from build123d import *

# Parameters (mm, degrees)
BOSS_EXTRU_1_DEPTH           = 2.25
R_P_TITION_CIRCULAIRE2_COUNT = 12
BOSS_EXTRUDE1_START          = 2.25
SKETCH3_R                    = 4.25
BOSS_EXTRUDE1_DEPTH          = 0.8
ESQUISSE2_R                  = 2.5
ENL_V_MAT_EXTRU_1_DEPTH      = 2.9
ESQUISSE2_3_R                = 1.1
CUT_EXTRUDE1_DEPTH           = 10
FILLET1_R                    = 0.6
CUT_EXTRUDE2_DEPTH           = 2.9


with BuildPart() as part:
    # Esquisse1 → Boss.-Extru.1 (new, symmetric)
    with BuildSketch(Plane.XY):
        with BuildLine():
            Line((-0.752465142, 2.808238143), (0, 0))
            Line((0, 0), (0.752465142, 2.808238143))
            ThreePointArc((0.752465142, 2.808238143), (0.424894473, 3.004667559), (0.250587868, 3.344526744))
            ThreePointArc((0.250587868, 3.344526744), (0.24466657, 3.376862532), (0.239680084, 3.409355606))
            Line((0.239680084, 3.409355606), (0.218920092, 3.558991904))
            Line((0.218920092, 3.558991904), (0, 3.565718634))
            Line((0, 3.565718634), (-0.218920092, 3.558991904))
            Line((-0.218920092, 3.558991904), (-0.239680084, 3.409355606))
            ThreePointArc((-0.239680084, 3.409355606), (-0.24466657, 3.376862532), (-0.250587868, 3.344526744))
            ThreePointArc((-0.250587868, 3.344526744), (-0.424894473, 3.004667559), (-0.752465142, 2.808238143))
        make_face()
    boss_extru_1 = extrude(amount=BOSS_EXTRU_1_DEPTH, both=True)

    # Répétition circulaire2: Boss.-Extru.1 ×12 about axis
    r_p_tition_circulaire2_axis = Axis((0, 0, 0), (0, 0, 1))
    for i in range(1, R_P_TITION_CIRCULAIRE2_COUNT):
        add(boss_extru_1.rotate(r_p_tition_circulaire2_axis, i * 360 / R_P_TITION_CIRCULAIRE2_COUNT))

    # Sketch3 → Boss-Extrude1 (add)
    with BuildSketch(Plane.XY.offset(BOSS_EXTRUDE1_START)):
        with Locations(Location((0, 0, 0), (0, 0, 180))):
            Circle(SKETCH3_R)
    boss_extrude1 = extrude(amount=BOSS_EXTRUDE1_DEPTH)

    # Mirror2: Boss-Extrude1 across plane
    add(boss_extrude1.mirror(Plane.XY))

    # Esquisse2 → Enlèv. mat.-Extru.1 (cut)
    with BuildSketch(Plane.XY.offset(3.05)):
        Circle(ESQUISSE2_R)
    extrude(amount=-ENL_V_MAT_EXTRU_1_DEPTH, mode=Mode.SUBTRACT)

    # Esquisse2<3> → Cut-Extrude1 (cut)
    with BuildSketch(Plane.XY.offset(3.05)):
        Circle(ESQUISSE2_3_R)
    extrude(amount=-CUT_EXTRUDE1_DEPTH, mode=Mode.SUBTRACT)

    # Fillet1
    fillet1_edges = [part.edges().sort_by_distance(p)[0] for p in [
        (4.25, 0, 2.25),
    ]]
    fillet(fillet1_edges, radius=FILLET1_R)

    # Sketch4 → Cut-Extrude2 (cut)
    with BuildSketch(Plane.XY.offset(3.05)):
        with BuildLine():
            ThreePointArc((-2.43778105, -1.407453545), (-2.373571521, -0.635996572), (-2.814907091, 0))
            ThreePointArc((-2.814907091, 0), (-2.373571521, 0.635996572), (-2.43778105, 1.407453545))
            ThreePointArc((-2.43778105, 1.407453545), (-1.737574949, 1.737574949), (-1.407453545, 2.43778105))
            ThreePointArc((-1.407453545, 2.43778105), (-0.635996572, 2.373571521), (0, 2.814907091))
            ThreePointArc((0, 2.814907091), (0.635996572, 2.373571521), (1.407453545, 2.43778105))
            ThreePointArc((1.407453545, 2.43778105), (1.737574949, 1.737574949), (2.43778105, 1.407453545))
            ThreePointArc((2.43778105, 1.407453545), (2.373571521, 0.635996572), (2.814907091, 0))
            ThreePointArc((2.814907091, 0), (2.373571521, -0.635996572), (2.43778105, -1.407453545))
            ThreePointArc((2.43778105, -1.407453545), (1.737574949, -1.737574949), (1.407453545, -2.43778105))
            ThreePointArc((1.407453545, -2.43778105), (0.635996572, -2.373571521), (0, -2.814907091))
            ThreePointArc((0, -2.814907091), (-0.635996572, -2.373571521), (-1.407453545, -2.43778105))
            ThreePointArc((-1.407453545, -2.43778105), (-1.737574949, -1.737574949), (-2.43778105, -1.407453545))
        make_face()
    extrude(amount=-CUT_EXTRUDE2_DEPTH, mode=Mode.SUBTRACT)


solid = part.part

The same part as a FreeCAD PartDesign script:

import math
import FreeCAD as App
import Part
import Sketcher
from FreeCAD import Vector
Q = App.Units.Quantity


def edges_at(feature, points):
    """Names of the edges that pass closest to the given points."""
    edges = feature.Shape.Edges
    near = lambda p: min(range(len(edges)), key=lambda i: edges[i].distToShape(Part.Vertex(*p))[0])
    return sorted({f"Edge{near(p) + 1}" for p in points})

doc = App.newDocument("Part")
body = doc.addObject("PartDesign::Body", "Body")

# Sketch on XY plane
sketch1 = body.newObject("Sketcher::SketchObject", "Sketch")
sketch1.AttachmentSupport = (doc.getObject("XY_Plane"), [""])
sketch1.MapMode = "FlatFace"
sketch1.addGeometry(Part.LineSegment(Vector(-0.75, 2.81, 0), Vector(0, 0, 0)), False)
sketch1.addGeometry(Part.LineSegment(Vector(0, 0, 0), Vector(0.75, 2.81, 0)), False)
sketch1.addGeometry(Part.ArcOfCircle(Part.Circle(Vector(0.93, 3.48, 0), Vector(0, 0, 1), 0.69), math.radians(-169), math.radians(-105)), False)
sketch1.addGeometry(Part.ArcOfCircle(Part.Circle(Vector(1.37, 3.57, 0), Vector(0, 0, 1), 1.14), math.radians(-172.1), math.radians(-168.8)), False)
sketch1.addGeometry(Part.LineSegment(Vector(0.24, 3.41, 0), Vector(0.22, 3.56, 0)), False)
sketch1.addGeometry(Part.LineSegment(Vector(0.22, 3.56, 0), Vector(0, 3.57, 0)), False)
sketch1.addGeometry(Part.LineSegment(Vector(0, 3.57, 0), Vector(-0.22, 3.56, 0)), False)
sketch1.addGeometry(Part.LineSegment(Vector(-0.22, 3.56, 0), Vector(-0.24, 3.41, 0)), False)
sketch1.addGeometry(Part.ArcOfCircle(Part.Circle(Vector(-1.37, 3.57, 0), Vector(0, 0, 1), 1.14), math.radians(-11.2), math.radians(-7.9)), False)
sketch1.addGeometry(Part.ArcOfCircle(Part.Circle(Vector(-0.93, 3.48, 0), Vector(0, 0, 1), 0.69), math.radians(-75), math.radians(-11)), False)
sketch1.addConstraint(Sketcher.Constraint("Coincident", 0, 2, 1, 1))
sketch1.addConstraint(Sketcher.Constraint("Coincident", 1, 2, 2, 2))
sketch1.addConstraint(Sketcher.Constraint("Tangent", 2, 1, 3, 2))
sketch1.addConstraint(Sketcher.Constraint("Tangent", 3, 1, 4, 1))
sketch1.addConstraint(Sketcher.Constraint("Coincident", 4, 2, 5, 1))
sketch1.addConstraint(Sketcher.Constraint("Coincident", 5, 2, 6, 1))
sketch1.addConstraint(Sketcher.Constraint("Coincident", 6, 2, 7, 1))
sketch1.addConstraint(Sketcher.Constraint("Tangent", 7, 2, 8, 2))
sketch1.addConstraint(Sketcher.Constraint("Tangent", 8, 1, 9, 2))
sketch1.addConstraint(Sketcher.Constraint("Coincident", 9, 1, 0, 1))
sketch1.addConstraint(Sketcher.Constraint("Coincident", 0, 2, -1, 1))
sketch1.addConstraint(Sketcher.Constraint("Equal", 3, 8))
sketch1.addConstraint(Sketcher.Constraint("Equal", 2, 9))
sketch1.addConstraint(Sketcher.Constraint("Symmetric", 3, 3, 8, 3, -2))
sketch1.addConstraint(Sketcher.Constraint("Symmetric", 4, 2, 6, 2, -2))
sketch1.addConstraint(Sketcher.Constraint("Symmetric", 1, 2, 9, 1, -2))
sketch1.addConstraint(Sketcher.Constraint("PointOnObject", 5, 2, -2))
sketch1.addConstraint(Sketcher.Constraint("Angle", 0, Q("-75 deg")))
sketch1.addConstraint(Sketcher.Constraint("Radius", 3, Q("1.14 mm")))
sketch1.addConstraint(Sketcher.Constraint("Radius", 2, Q("0.695 mm")))
sketch1.addConstraint(Sketcher.Constraint("DistanceX", 1, 2, 3, 3, Q("0.6164 mm")))
sketch1.addConstraint(Sketcher.Constraint("DistanceY", 3, 1, 2, 3, Q("0.070201 mm")))
sketch1.addConstraint(Sketcher.Constraint("DistanceX", 6, 2, 3, 1, Q("0.4586 mm")))
sketch1.addConstraint(Sketcher.Constraint("Distance", 4, Q("0.15107 mm")))
sketch1.addConstraint(Sketcher.Constraint("DistanceY", -1, 1, 1, 2, Q("2.808238 mm")))
sketch1.addConstraint(Sketcher.Constraint("DistanceY", -1, 1, 5, 2, Q("3.565719 mm")))
pad1 = body.newObject("PartDesign::Pad", "Pad")
pad1.Profile = sketch1
pad1.Length = 4.5
pad1.Midplane = True
doc.recompute()

polarpattern = body.newObject("PartDesign::PolarPattern", "PolarPattern")
polarpattern.Originals = [pad1]
polarpattern.Axis = (doc.getObject("Z_Axis"), [""])
polarpattern.Angle = 360
polarpattern.Occurrences = 12
body.Tip = polarpattern

# Sketch on XY plane
sketch2 = body.newObject("Sketcher::SketchObject", "Sketch001")
sketch2.AttachmentSupport = (doc.getObject("XY_Plane"), [""])
sketch2.MapMode = "FlatFace"
sketch2.AttachmentOffset = App.Placement(Vector(0, 0, 2.25), App.Rotation())
sketch2.addGeometry(Part.Circle(Vector(0, 0, 0), Vector(0, 0, 1), 4.2), False)
sketch2.addConstraint(Sketcher.Constraint("Coincident", 0, 3, -1, 1))
sketch2.addConstraint(Sketcher.Constraint("Diameter", 0, Q("8.5 mm")))
pad2 = body.newObject("PartDesign::Pad", "Pad001")
pad2.Profile = sketch2
pad2.Length = 0.8
doc.recompute()

mirrored = body.newObject("PartDesign::Mirrored", "Mirrored")
mirrored.Originals = [pad2]
mirrored.MirrorPlane = (doc.getObject("XY_Plane"), [""])
body.Tip = mirrored

# Sketch on XY plane
sketch3 = body.newObject("Sketcher::SketchObject", "Sketch002")
sketch3.AttachmentSupport = (doc.getObject("XY_Plane"), [""])
sketch3.MapMode = "FlatFace"
sketch3.AttachmentOffset = App.Placement(Vector(0, 0, 3.05), App.Rotation())
sketch3.addGeometry(Part.Circle(Vector(0, 0, 0), Vector(0, 0, 1), 2.5), False)
sketch3.addConstraint(Sketcher.Constraint("Coincident", 0, 3, -1, 1))
sketch3.addConstraint(Sketcher.Constraint("Diameter", 0, Q("5 mm")))
pocket1 = body.newObject("PartDesign::Pocket", "Pocket")
pocket1.Profile = sketch3
pocket1.Length = 2.9

# Sketch on XY plane
sketch4 = body.newObject("Sketcher::SketchObject", "Sketch003")
sketch4.AttachmentSupport = (doc.getObject("XY_Plane"), [""])
sketch4.MapMode = "FlatFace"
sketch4.AttachmentOffset = App.Placement(Vector(0, 0, 3.05), App.Rotation())
sketch4.addGeometry(Part.Circle(Vector(0, 0, 0), Vector(0, 0, 1), 1.1), False)
sketch4.addConstraint(Sketcher.Constraint("Coincident", 0, 3, -1, 1))
sketch4.addConstraint(Sketcher.Constraint("Diameter", 0, Q("2.2 mm")))
pocket2 = body.newObject("PartDesign::Pocket", "Pocket001")
pocket2.Profile = sketch4
pocket2.Length = 10
doc.recompute()

fillet = body.newObject("PartDesign::Fillet", "Fillet")
fillet.Base = (pocket2, edges_at(pocket2, [(4.25, 0, 2.25)]))
fillet.Radius = 0.6

# Sketch on XY plane
sketch5 = body.newObject("Sketcher::SketchObject", "Sketch004")
sketch5.AttachmentSupport = (doc.getObject("XY_Plane"), [""])
sketch5.MapMode = "FlatFace"
sketch5.AttachmentOffset = App.Placement(Vector(0, 0, 3.05), App.Rotation())
sketch5.addGeometry(Part.ArcOfCircle(Part.Circle(Vector(-3.5, -0.9, 0), Vector(0, 0, 1), 1.1), math.radians(-25), math.radians(55)), False)
sketch5.addGeometry(Part.ArcOfCircle(Part.Circle(Vector(-2.5, -2.5, 0), Vector(0, 0, 1), 1.1), math.radians(5), math.radians(85)), False)
sketch5.addGeometry(Part.ArcOfCircle(Part.Circle(Vector(-0.9, -3.5, 0), Vector(0, 0, 1), 1.1), math.radians(35), math.radians(115)), False)
sketch5.addGeometry(Part.ArcOfCircle(Part.Circle(Vector(0.9, -3.5, 0), Vector(0, 0, 1), 1.1), math.radians(65), math.radians(145)), False)
sketch5.addGeometry(Part.ArcOfCircle(Part.Circle(Vector(2.5, -2.5, 0), Vector(0, 0, 1), 1.1), math.radians(95), math.radians(175)), False)
sketch5.addGeometry(Part.ArcOfCircle(Part.Circle(Vector(3.5, -0.9, 0), Vector(0, 0, 1), 1.1), math.radians(125), math.radians(205)), False)
sketch5.addGeometry(Part.ArcOfCircle(Part.Circle(Vector(3.5, 0.9, 0), Vector(0, 0, 1), 1.1), math.radians(155), math.radians(235)), False)
sketch5.addGeometry(Part.ArcOfCircle(Part.Circle(Vector(2.5, 2.5, 0), Vector(0, 0, 1), 1.1), math.radians(-175), math.radians(-95)), False)
sketch5.addGeometry(Part.ArcOfCircle(Part.Circle(Vector(0.9, 3.5, 0), Vector(0, 0, 1), 1.1), math.radians(-145), math.radians(-65)), False)
sketch5.addGeometry(Part.ArcOfCircle(Part.Circle(Vector(-0.9, 3.5, 0), Vector(0, 0, 1), 1.1), math.radians(-115), math.radians(-35)), False)
sketch5.addGeometry(Part.ArcOfCircle(Part.Circle(Vector(-2.5, 2.5, 0), Vector(0, 0, 1), 1.1), math.radians(-85), math.radians(-5)), False)
sketch5.addGeometry(Part.ArcOfCircle(Part.Circle(Vector(-3.5, 0.9, 0), Vector(0, 0, 1), 1.1), math.radians(-55), math.radians(25)), False)
sketch5.addConstraint(Sketcher.Constraint("Coincident", 0, 1, 1, 2))
sketch5.addConstraint(Sketcher.Constraint("Coincident", 1, 1, 2, 2))
sketch5.addConstraint(Sketcher.Constraint("Coincident", 2, 1, 3, 2))
sketch5.addConstraint(Sketcher.Constraint("Coincident", 3, 1, 4, 2))
sketch5.addConstraint(Sketcher.Constraint("Coincident", 4, 1, 5, 2))
sketch5.addConstraint(Sketcher.Constraint("Coincident", 5, 1, 6, 2))
sketch5.addConstraint(Sketcher.Constraint("Coincident", 6, 1, 7, 2))
sketch5.addConstraint(Sketcher.Constraint("Coincident", 7, 1, 8, 2))
sketch5.addConstraint(Sketcher.Constraint("Coincident", 8, 1, 9, 2))
sketch5.addConstraint(Sketcher.Constraint("Coincident", 9, 1, 10, 2))
sketch5.addConstraint(Sketcher.Constraint("Coincident", 10, 1, 11, 2))
sketch5.addConstraint(Sketcher.Constraint("Coincident", 11, 1, 0, 2))
sketch5.addConstraint(Sketcher.Constraint("Equal", 0, 1))
sketch5.addConstraint(Sketcher.Constraint("Equal", 1, 2))
sketch5.addConstraint(Sketcher.Constraint("Equal", 2, 3))
sketch5.addConstraint(Sketcher.Constraint("Equal", 3, 4))
sketch5.addConstraint(Sketcher.Constraint("Equal", 4, 5))
sketch5.addConstraint(Sketcher.Constraint("Equal", 5, 6))
sketch5.addConstraint(Sketcher.Constraint("Equal", 6, 7))
sketch5.addConstraint(Sketcher.Constraint("Equal", 7, 8))
sketch5.addConstraint(Sketcher.Constraint("Equal", 8, 9))
sketch5.addConstraint(Sketcher.Constraint("Equal", 9, 10))
sketch5.addConstraint(Sketcher.Constraint("Equal", 10, 11))
sketch5.addConstraint(Sketcher.Constraint("Symmetric", 0, 3, 6, 3, -1, 1))
sketch5.addConstraint(Sketcher.Constraint("Symmetric", 1, 3, 7, 3, -1, 1))
sketch5.addConstraint(Sketcher.Constraint("Symmetric", 2, 3, 8, 3, -1, 1))
sketch5.addConstraint(Sketcher.Constraint("Symmetric", 3, 3, 9, 3, -1, 1))
sketch5.addConstraint(Sketcher.Constraint("Symmetric", 4, 3, 10, 3, -1, 1))
sketch5.addConstraint(Sketcher.Constraint("Symmetric", 5, 3, 11, 3, -1, 1))
sketch5.addConstraint(Sketcher.Constraint("Symmetric", 2, 3, 3, 3, -2))
sketch5.addConstraint(Sketcher.Constraint("Symmetric", 1, 3, 4, 3, -2))
sketch5.addConstraint(Sketcher.Constraint("Symmetric", 0, 3, 5, 3, -2))
sketch5.addConstraint(Sketcher.Constraint("Radius", 0, Q("1.145 mm")))
sketch5.addConstraint(Sketcher.Constraint("DistanceX", 0, 3, 3, 3, Q("4.411901 mm")))
sketch5.addConstraint(Sketcher.Constraint("DistanceY", 3, 3, 6, 3, Q("4.411901 mm")))
sketch5.addConstraint(Sketcher.Constraint("DistanceX", 0, 1, -1, 1, Q("2.437781 mm")))
sketch5.addConstraint(Sketcher.Constraint("DistanceY", 1, 1, -1, 1, Q("2.437781 mm")))
sketch5.addConstraint(Sketcher.Constraint("DistanceX", 2, 3, 3, 3, Q("1.864689 mm")))
sketch5.addConstraint(Sketcher.Constraint("DistanceX", 0, 3, 4, 3, Q("6.026769 mm")))
pocket3 = body.newObject("PartDesign::Pocket", "Pocket002")
pocket3.Profile = sketch5
pocket3.Length = 2.9

doc.recompute()
